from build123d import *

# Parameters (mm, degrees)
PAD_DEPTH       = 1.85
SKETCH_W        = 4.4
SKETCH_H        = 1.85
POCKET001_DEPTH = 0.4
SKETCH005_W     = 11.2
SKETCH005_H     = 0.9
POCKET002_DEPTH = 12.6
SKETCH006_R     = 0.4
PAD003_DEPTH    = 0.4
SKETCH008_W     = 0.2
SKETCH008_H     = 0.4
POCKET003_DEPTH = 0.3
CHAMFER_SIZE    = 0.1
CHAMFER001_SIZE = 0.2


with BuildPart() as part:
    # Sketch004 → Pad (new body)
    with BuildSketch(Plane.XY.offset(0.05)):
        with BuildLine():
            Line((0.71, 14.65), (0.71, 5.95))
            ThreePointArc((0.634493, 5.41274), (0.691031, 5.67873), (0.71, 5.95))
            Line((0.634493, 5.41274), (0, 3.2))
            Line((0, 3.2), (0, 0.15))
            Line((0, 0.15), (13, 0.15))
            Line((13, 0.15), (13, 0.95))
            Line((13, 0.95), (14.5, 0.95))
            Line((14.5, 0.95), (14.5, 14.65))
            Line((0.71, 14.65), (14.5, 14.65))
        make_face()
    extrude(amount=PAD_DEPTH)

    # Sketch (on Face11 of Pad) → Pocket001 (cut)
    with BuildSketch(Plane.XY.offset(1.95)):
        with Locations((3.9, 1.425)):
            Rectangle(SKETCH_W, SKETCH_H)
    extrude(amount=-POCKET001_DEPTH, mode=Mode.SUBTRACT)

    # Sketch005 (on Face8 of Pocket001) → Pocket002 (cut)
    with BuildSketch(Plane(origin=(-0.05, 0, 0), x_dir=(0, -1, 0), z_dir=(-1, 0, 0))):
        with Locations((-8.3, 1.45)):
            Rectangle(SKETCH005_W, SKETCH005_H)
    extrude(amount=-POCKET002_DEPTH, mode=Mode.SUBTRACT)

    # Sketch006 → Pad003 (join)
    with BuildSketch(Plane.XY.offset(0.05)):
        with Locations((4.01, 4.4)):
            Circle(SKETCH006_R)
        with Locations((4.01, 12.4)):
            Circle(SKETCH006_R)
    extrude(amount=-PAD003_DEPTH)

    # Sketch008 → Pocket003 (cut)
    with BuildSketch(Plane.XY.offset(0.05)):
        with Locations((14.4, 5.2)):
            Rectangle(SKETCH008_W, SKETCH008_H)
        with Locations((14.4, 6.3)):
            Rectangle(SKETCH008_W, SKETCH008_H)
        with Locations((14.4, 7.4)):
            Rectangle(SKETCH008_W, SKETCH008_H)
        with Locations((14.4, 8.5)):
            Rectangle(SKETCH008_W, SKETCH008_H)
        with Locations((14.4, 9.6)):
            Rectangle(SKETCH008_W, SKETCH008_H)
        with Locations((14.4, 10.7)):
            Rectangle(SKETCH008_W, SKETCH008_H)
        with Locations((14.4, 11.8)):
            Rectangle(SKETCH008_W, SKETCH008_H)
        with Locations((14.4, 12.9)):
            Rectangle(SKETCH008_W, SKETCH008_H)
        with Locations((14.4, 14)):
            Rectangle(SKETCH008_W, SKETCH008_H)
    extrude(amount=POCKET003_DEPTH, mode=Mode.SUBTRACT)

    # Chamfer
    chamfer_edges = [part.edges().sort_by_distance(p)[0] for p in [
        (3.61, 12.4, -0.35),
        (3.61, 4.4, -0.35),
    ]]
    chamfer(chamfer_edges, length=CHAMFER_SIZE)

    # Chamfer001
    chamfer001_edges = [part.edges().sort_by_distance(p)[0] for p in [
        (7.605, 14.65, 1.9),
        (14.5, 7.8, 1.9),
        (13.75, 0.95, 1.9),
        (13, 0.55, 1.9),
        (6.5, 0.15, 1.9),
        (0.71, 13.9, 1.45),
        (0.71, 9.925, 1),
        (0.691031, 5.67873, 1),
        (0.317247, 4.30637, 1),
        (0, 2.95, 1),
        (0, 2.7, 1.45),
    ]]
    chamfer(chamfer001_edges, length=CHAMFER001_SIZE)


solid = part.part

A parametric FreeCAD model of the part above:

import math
import FreeCAD as App
import Part
import Sketcher
Q = App.Units.Quantity


def edges_at(feature, points):
    """Names of the edges that pass closest to the given points."""
    edges = feature.Shape.Edges
    near = lambda p: min(range(len(edges)), key=lambda i: edges[i].distToShape(Part.Vertex(*p))[0])
    return sorted({f"Edge{near(p) + 1}" for p in points})

doc = App.newDocument("Part")
body = doc.addObject("PartDesign::Body", "Body")

sketch1 = body.newObject("Sketcher::SketchObject", "Sketch")
sketch1.AttachmentSupport = (doc.getObject("XY_Plane"), [""])
sketch1.MapMode = "FlatFace"
sketch1.AttachmentOffset = App.Placement(App.Vector(0, 0, 0.05), App.Rotation())
sketch1.addGeometry([
    Part.LineSegment(App.Vector(0.71, 14.65, 0), App.Vector(0.71, 5.95, 0)),
    Part.ArcOfCircle(Part.Circle(App.Vector(-1.239149, 5.949999, 0), App.Vector(0, 0, 1), 1.949149), math.radians(-16.00003), math.radians(0.000023)),
    Part.LineSegment(App.Vector(0.634493, 5.41274, 0), App.Vector(0, 3.2, 0)),
    Part.LineSegment(App.Vector(0, 3.2, 0), App.Vector(0, 0.15, 0)),
    Part.LineSegment(App.Vector(0, 0.15, 0), App.Vector(13, 0.15, 0)),
    Part.LineSegment(App.Vector(13, 0.15, 0), App.Vector(13, 0.95, 0)),
    Part.LineSegment(App.Vector(13, 0.95, 0), App.Vector(14.5, 0.95, 0)),
    Part.LineSegment(App.Vector(14.5, 0.95, 0), App.Vector(14.5, 14.65, 0)),
    Part.LineSegment(App.Vector(14.5, 14.65, 0), App.Vector(0.71, 14.65, 0)),
], False)
sketch1.addConstraint([
    Sketcher.Constraint("Tangent", 0, 2, 1, 2),
    Sketcher.Constraint("Tangent", 1, 1, 2, 1),
    Sketcher.Constraint("Coincident", 2, 2, 3, 1),
    Sketcher.Constraint("Coincident", 3, 2, 4, 1),
    Sketcher.Constraint("Coincident", 4, 2, 5, 1),
    Sketcher.Constraint("Coincident", 5, 2, 6, 1),
    Sketcher.Constraint("Coincident", 6, 2, 7, 1),
    Sketcher.Constraint("Coincident", 7, 2, 8, 1),
    Sketcher.Constraint("Coincident", 8, 2, 0, 1),
    Sketcher.Constraint("Vertical", 0),
    Sketcher.Constraint("Vertical", 3),
    Sketcher.Constraint("Horizontal", 4),
    Sketcher.Constraint("Vertical", 5),
    Sketcher.Constraint("Horizontal", 6),
    Sketcher.Constraint("Vertical", 7),
    Sketcher.Constraint("Horizontal", 8),
    Sketcher.Constraint("PointOnObject", 2, 2, -2),
    Sketcher.Constraint("DistanceX", 4, 1, 4, 2, 13.0),
    Sketcher.Constraint("Angle", 2, Q("-106 deg")),
    Sketcher.Constraint("DistanceX", 6, 1, 6, 2, 1.5),
    Sketcher.Constraint("DistanceY", 0, 2, 0, 1, 8.7),
    Sketcher.Constraint("DistanceY", 5, 1, 5, 2, 0.8),
    Sketcher.Constraint("DistanceY", 7, 1, 7, 2, 13.7),
    Sketcher.Constraint("DistanceX", 8, 2, 8, 1, 13.79),
    Sketcher.Constraint("DistanceY", 3, 2, 3, 1, 3.05),
    Sketcher.Constraint("DistanceY", -1, 1, 2, 2, 3.2),
])
pad1 = body.newObject("PartDesign::Pad", "Pad")
pad1.Profile = sketch1
pad1.Length = 1.85

sketch2 = body.newObject("Sketcher::SketchObject", "Sketch001")
sketch2.AttachmentSupport = (doc.getObject("XY_Plane"), [""])
sketch2.MapMode = "FlatFace"
sketch2.AttachmentOffset = App.Placement(App.Vector(0, 0, 1.95), App.Rotation())
sketch2.addGeometry([
    Part.LineSegment(App.Vector(1.7, 2.35, 0), App.Vector(1.7, 0.5, 0)),
    Part.LineSegment(App.Vector(1.7, 0.5, 0), App.Vector(6.1, 0.5, 0)),
    Part.LineSegment(App.Vector(6.1, 0.5, 0), App.Vector(6.1, 2.35, 0)),
    Part.LineSegment(App.Vector(6.1, 2.35, 0), App.Vector(1.7, 2.35, 0)),
], False)
sketch2.addConstraint([
    Sketcher.Constraint("Coincident", 0, 2, 1, 1),
    Sketcher.Constraint("Coincident", 1, 2, 2, 1),
    Sketcher.Constraint("Coincident", 2, 2, 3, 1),
    Sketcher.Constraint("Coincident", 3, 2, 0, 1),
    Sketcher.Constraint("Vertical", 0),
    Sketcher.Constraint("Horizontal", 1),
    Sketcher.Constraint("Vertical", 2),
    Sketcher.Constraint("Horizontal", 3),
    Sketcher.Constraint("DistanceX", 1, 1, 1, 2, 4.4),
    Sketcher.Constraint("DistanceY", 0, 2, 0, 1, 1.85),
    Sketcher.Constraint("DistanceX", -1, 1, 0, 2, 1.7),
    Sketcher.Constraint("DistanceY", -1, 1, 0, 2, 0.5),
])
pocket1 = body.newObject("PartDesign::Pocket", "Pocket")
pocket1.Profile = sketch2
pocket1.Length = 0.4

sketch3 = body.newObject("Sketcher::SketchObject", "Sketch002")
sketch3.AttachmentSupport = (doc.getObject("YZ_Plane"), [""])
sketch3.MapMode = "FlatFace"
sketch3.AttachmentOffset = App.Placement(App.Vector(0, 0, -0.05), App.Rotation())
sketch3.addGeometry([
    Part.LineSegment(App.Vector(13.9, 1.9, 0), App.Vector(13.9, 1, 0)),
    Part.LineSegment(App.Vector(13.9, 1, 0), App.Vector(2.7, 1, 0)),
    Part.LineSegment(App.Vector(2.7, 1, 0), App.Vector(2.7, 1.9, 0)),
    Part.LineSegment(App.Vector(2.7, 1.9, 0), App.Vector(13.9, 1.9, 0)),
], False)
sketch3.addConstraint([
    Sketcher.Constraint("Coincident", 0, 2, 1, 1),
    Sketcher.Constraint("Coincident", 1, 2, 2, 1),
    Sketcher.Constraint("Coincident", 2, 2, 3, 1),
    Sketcher.Constraint("Coincident", 3, 2, 0, 1),
    Sketcher.Constraint("Vertical", 0),
    Sketcher.Constraint("Horizontal", 1),
    Sketcher.Constraint("Vertical", 2),
    Sketcher.Constraint("Horizontal", 3),
    Sketcher.Constraint("DistanceX", 1, 2, 1, 1, 11.2),
    Sketcher.Constraint("DistanceY", 0, 2, 0, 1, 0.9),
    Sketcher.Constraint("DistanceY", -1, 1, 0, 2, 1.0),
    Sketcher.Constraint("DistanceX", -1, 1, 0, 2, 13.9),
])
pocket2 = body.newObject("PartDesign::Pocket", "Pocket001")
pocket2.Profile = sketch3
pocket2.Length = 12.6
pocket2.Reversed = True

sketch4 = body.newObject("Sketcher::SketchObject", "Sketch003")
sketch4.AttachmentSupport = (doc.getObject("XY_Plane"), [""])
sketch4.MapMode = "FlatFace"
sketch4.AttachmentOffset = App.Placement(App.Vector(0, 0, 0.05), App.Rotation())
sketch4.addGeometry([
    Part.Circle(App.Vector(4.01, 4.4, 0), App.Vector(0, 0, 1), 0.4),
    Part.Circle(App.Vector(4.01, 12.4, 0), App.Vector(0, 0, 1), 0.4),
], False)
sketch4.addConstraint([
    Sketcher.Constraint("Equal", 0, 1),
    Sketcher.Constraint("Vertical", 0, 3, 1, 3),
    Sketcher.Constraint("Diameter", 0, 0.8),
    Sketcher.Constraint("DistanceY", 0, 3, 1, 3, 8.0),
    Sketcher.Constraint("DistanceY", -1, 1, 0, 3, 4.4),
    Sketcher.Constraint("DistanceX", -1, 1, 0, 3, 4.01),
])
pad2 = body.newObject("PartDesign::Pad", "Pad001")
pad2.Profile = sketch4
pad2.Length = 0.4
pad2.Reversed = True

sketch5 = body.newObject("Sketcher::SketchObject", "Sketch004")
sketch5.AttachmentSupport = (doc.getObject("XY_Plane"), [""])
sketch5.MapMode = "FlatFace"
sketch5.AttachmentOffset = App.Placement(App.Vector(0, 0, 0.05), App.Rotation())
sketch5.addGeometry([
    Part.LineSegment(App.Vector(14.3, 5.4, 0), App.Vector(14.3, 5, 0)),
    Part.LineSegment(App.Vector(14.3, 5, 0), App.Vector(14.5, 5, 0)),
    Part.LineSegment(App.Vector(14.5, 5, 0), App.Vector(14.5, 5.4, 0)),
    Part.LineSegment(App.Vector(14.5, 5.4, 0), App.Vector(14.3, 5.4, 0)),
    Part.LineSegment(App.Vector(14.3, 6.5, 0), App.Vector(14.3, 6.1, 0)),
    Part.LineSegment(App.Vector(14.3, 6.1, 0), App.Vector(14.5, 6.1, 0)),
    Part.LineSegment(App.Vector(14.5, 6.1, 0), App.Vector(14.5, 6.5, 0)),
    Part.LineSegment(App.Vector(14.5, 6.5, 0), App.Vector(14.3, 6.5, 0)),
    Part.LineSegment(App.Vector(14.3, 7.6, 0), App.Vector(14.3, 7.2, 0)),
    Part.LineSegment(App.Vector(14.3, 7.2, 0), App.Vector(14.5, 7.2, 0)),
    Part.LineSegment(App.Vector(14.5, 7.2, 0), App.Vector(14.5, 7.6, 0)),
    Part.LineSegment(App.Vector(14.5, 7.6, 0), App.Vector(14.3, 7.6, 0)),
    Part.LineSegment(App.Vector(14.3, 8.7, 0), App.Vector(14.3, 8.3, 0)),
    Part.LineSegment(App.Vector(14.3, 8.3, 0), App.Vector(14.5, 8.3, 0)),
    Part.LineSegment(App.Vector(14.5, 8.3, 0), App.Vector(14.5, 8.7, 0)),
    Part.LineSegment(App.Vector(14.5, 8.7, 0), App.Vector(14.3, 8.7, 0)),
    Part.LineSegment(App.Vector(14.3, 9.8, 0), App.Vector(14.3, 9.4, 0)),
    Part.LineSegment(App.Vector(14.3, 9.4, 0), App.Vector(14.5, 9.4, 0)),
    Part.LineSegment(App.Vector(14.5, 9.4, 0), App.Vector(14.5, 9.8, 0)),
    Part.LineSegment(App.Vector(14.5, 9.8, 0), App.Vector(14.3, 9.8, 0)),
    Part.LineSegment(App.Vector(14.3, 10.9, 0), App.Vector(14.3, 10.5, 0)),
    Part.LineSegment(App.Vector(14.3, 10.5, 0), App.Vector(14.5, 10.5, 0)),
    Part.LineSegment(App.Vector(14.5, 10.5, 0), App.Vector(14.5, 10.9, 0)),
    Part.LineSegment(App.Vector(14.5, 10.9, 0), App.Vector(14.3, 10.9, 0)),
    Part.LineSegment(App.Vector(14.3, 12, 0), App.Vector(14.3, 11.6, 0)),
    Part.LineSegment(App.Vector(14.3, 11.6, 0), App.Vector(14.5, 11.6, 0)),
    Part.LineSegment(App.Vector(14.5, 11.6, 0), App.Vector(14.5, 12, 0)),
    Part.LineSegment(App.Vector(14.5, 12, 0), App.Vector(14.3, 12, 0)),
    Part.LineSegment(App.Vector(14.3, 13.1, 0), App.Vector(14.3, 12.7, 0)),
    Part.LineSegment(App.Vector(14.3, 12.7, 0), App.Vector(14.5, 12.7, 0)),
    Part.LineSegment(App.Vector(14.5, 12.7, 0), App.Vector(14.5, 13.1, 0)),
    Part.LineSegment(App.Vector(14.5, 13.1, 0), App.Vector(14.3, 13.1, 0)),
    Part.LineSegment(App.Vector(14.3, 14.2, 0), App.Vector(14.3, 13.8, 0)),
    Part.LineSegment(App.Vector(14.3, 13.8, 0), App.Vector(14.5, 13.8, 0)),
    Part.LineSegment(App.Vector(14.5, 13.8, 0), App.Vector(14.5, 14.2, 0)),
    Part.LineSegment(App.Vector(14.5, 14.2, 0), App.Vector(14.3, 14.2, 0)),
], False)
sketch5.addConstraint([
    Sketcher.Constraint("Coincident", 0, 2, 1, 1),
    Sketcher.Constraint("Coincident", 1, 2, 2, 1),
    Sketcher.Constraint("Coincident", 2, 2, 3, 1),
    Sketcher.Constraint("Coincident", 3, 2, 0, 1),
    Sketcher.Constraint("Coincident", 4, 2, 5, 1),
    Sketcher.Constraint("Coincident", 5, 2, 6, 1),
    Sketcher.Constraint("Coincident", 6, 2, 7, 1),
    Sketcher.Constraint("Coincident", 7, 2, 4, 1),
    Sketcher.Constraint("Coincident", 8, 2, 9, 1),
    Sketcher.Constraint("Coincident", 9, 2, 10, 1),
    Sketcher.Constraint("Coincident", 10, 2, 11, 1),
    Sketcher.Constraint("Coincident", 11, 2, 8, 1),
    Sketcher.Constraint("Coincident", 12, 2, 13, 1),
    Sketcher.Constraint("Coincident", 13, 2, 14, 1),
    Sketcher.Constraint("Coincident", 14, 2, 15, 1),
    Sketcher.Constraint("Coincident", 15, 2, 12, 1),
    Sketcher.Constraint("Coincident", 16, 2, 17, 1),
    Sketcher.Constraint("Coincident", 17, 2, 18, 1),
    Sketcher.Constraint("Coincident", 18, 2, 19, 1),
    Sketcher.Constraint("Coincident", 19, 2, 16, 1),
    Sketcher.Constraint("Coincident", 20, 2, 21, 1),
    Sketcher.Constraint("Coincident", 21, 2, 22, 1),
    Sketcher.Constraint("Coincident", 22, 2, 23, 1),
    Sketcher.Constraint("Coincident", 23, 2, 20, 1),
    Sketcher.Constraint("Coincident", 24, 2, 25, 1),
    Sketcher.Constraint("Coincident", 25, 2, 26, 1),
    Sketcher.Constraint("Coincident", 26, 2, 27, 1),
    Sketcher.Constraint("Coincident", 27, 2, 24, 1),
    Sketcher.Constraint("Coincident", 28, 2, 29, 1),
    Sketcher.Constraint("Coincident", 29, 2, 30, 1),
    Sketcher.Constraint("Coincident", 30, 2, 31, 1),
    Sketcher.Constraint("Coincident", 31, 2, 28, 1),
    Sketcher.Constraint("Coincident", 32, 2, 33, 1),
    Sketcher.Constraint("Coincident", 33, 2, 34, 1),
    Sketcher.Constraint("Coincident", 34, 2, 35, 1),
    Sketcher.Constraint("Coincident", 35, 2, 32, 1),
    Sketcher.Constraint("Vertical", 0),
    Sketcher.Constraint("Horizontal", 1),
    Sketcher.Constraint("Vertical", 2),
    Sketcher.Constraint("Horizontal", 3),
    Sketcher.Constraint("Vertical", 4),
    Sketcher.Constraint("Horizontal", 5),
    Sketcher.Constraint("Vertical", 6),
    Sketcher.Constraint("Horizontal", 7),
    Sketcher.Constraint("Vertical", 8),
    Sketcher.Constraint("Horizontal", 9),
    Sketcher.Constraint("Vertical", 10),
    Sketcher.Constraint("Horizontal", 11),
    Sketcher.Constraint("Vertical", 12),
    Sketcher.Constraint("Horizontal", 13),
    Sketcher.Constraint("Vertical", 14),
    Sketcher.Constraint("Horizontal", 15),
    Sketcher.Constraint("Vertical", 16),
    Sketcher.Constraint("Horizontal", 17),
    Sketcher.Constraint("Vertical", 18),
    Sketcher.Constraint("Horizontal", 19),
    Sketcher.Constraint("Vertical", 20),
    Sketcher.Constraint("Horizontal", 21),
    Sketcher.Constraint("Vertical", 22),
    Sketcher.Constraint("Horizontal", 23),
    Sketcher.Constraint("Vertical", 24),
    Sketcher.Constraint("Horizontal", 25),
    Sketcher.Constraint("Vertical", 26),
    Sketcher.Constraint("Horizontal", 27),
    Sketcher.Constraint("Vertical", 28),
    Sketcher.Constraint("Horizontal", 29),
    Sketcher.Constraint("Vertical", 30),
    Sketcher.Constraint("Horizontal", 31),
    Sketcher.Constraint("Vertical", 32),
    Sketcher.Constraint("Horizontal", 33),
    Sketcher.Constraint("Vertical", 34),
    Sketcher.Constraint("Horizontal", 35),
    Sketcher.Constraint("Vertical", 3, 2, 4, 2),
    Sketcher.Constraint("Vertical", 2, 2, 5, 2),
    Sketcher.Constraint("Vertical", 7, 2, 8, 2),
    Sketcher.Constraint("Vertical", 6, 2, 9, 2),
    Sketcher.Constraint("Vertical", 11, 2, 12, 2),
    Sketcher.Constraint("Vertical", 10, 2, 13, 2),
    Sketcher.Constraint("Vertical", 15, 2, 16, 2),
    Sketcher.Constraint("Vertical", 14, 2, 17, 2),
    Sketcher.Constraint("Vertical", 19, 2, 20, 2),
    Sketcher.Constraint("Vertical", 18, 2, 21, 2),
    Sketcher.Constraint("Vertical", 23, 2, 24, 2),
    Sketcher.Constraint("Vertical", 22, 2, 25, 2),
    Sketcher.Constraint("Vertical", 27, 2, 28, 2),
    Sketcher.Constraint("Vertical", 26, 2, 29, 2),
    Sketcher.Constraint("Vertical", 31, 2, 32, 2),
    Sketcher.Constraint("Vertical", 30, 2, 33, 2),
    Sketcher.Constraint("Equal", 2, 4),
    Sketcher.Constraint("Equal", 6, 8),
    Sketcher.Constraint("Equal", 10, 12),
    Sketcher.Constraint("Equal", 14, 16),
    Sketcher.Constraint("Equal", 18, 20),
    Sketcher.Constraint("Equal", 22, 24),
    Sketcher.Constraint("Equal", 26, 28),
    Sketcher.Constraint("Equal", 30, 32),
    Sketcher.Constraint("DistanceX", 1, 1, 1, 2, 0.2),
    Sketcher.Constraint("DistanceY", 0, 2, 0, 1, 0.4),
    Sketcher.Constraint("DistanceY", -1, 1, 0, 2, 5.0),
    Sketcher.Constraint("DistanceY", -1, 1, 26, 2, 12.0),
    Sketcher.Constraint("DistanceX", -1, 1, 0, 2, 14.3),
    Sketcher.Constraint("DistanceY", -1, 1, 4, 2, 6.1),
    Sketcher.Constraint("DistanceY", -1, 1, 8, 2, 7.2),
    Sketcher.Constraint("DistanceY", -1, 1, 12, 2, 8.3),
    Sketcher.Constraint("DistanceY", -1, 1, 16, 2, 9.4),
    Sketcher.Constraint("DistanceY", -1, 1, 20, 2, 10.5),
    Sketcher.Constraint("DistanceY", -1, 1, 28, 2, 12.7),
    Sketcher.Constraint("DistanceY", -1, 1, 32, 2, 13.8),
])
pocket3 = body.newObject("PartDesign::Pocket", "Pocket002")
pocket3.Profile = sketch5
pocket3.Length = 0.3
pocket3.Reversed = True
doc.recompute()

chamfer = body.newObject("PartDesign::Chamfer", "Chamfer")
chamfer.Base = (pocket3, edges_at(pocket3, [(3.61, 12.4, -0.35), (3.61, 4.4, -0.35)]))
chamfer.Size = 0.1
doc.recompute()

chamfer2 = body.newObject("PartDesign::Chamfer", "Chamfer001")
chamfer2.Base = (chamfer, edges_at(chamfer, [
    (7.605, 14.65, 1.9),
    (14.5, 7.8, 1.9),
    (13.75, 0.95, 1.9),
    (13, 0.55, 1.9),
    (6.5, 0.15, 1.9),
    (0.71, 13.9, 1.45),
    (0.71, 9.925, 1),
    (0.691, 5.679, 1),
    (0.317, 4.306, 1),
    (0, 2.95, 1),
    (0, 2.7, 1.45),
]))
chamfer2.Size = 0.2

doc.recompute()
